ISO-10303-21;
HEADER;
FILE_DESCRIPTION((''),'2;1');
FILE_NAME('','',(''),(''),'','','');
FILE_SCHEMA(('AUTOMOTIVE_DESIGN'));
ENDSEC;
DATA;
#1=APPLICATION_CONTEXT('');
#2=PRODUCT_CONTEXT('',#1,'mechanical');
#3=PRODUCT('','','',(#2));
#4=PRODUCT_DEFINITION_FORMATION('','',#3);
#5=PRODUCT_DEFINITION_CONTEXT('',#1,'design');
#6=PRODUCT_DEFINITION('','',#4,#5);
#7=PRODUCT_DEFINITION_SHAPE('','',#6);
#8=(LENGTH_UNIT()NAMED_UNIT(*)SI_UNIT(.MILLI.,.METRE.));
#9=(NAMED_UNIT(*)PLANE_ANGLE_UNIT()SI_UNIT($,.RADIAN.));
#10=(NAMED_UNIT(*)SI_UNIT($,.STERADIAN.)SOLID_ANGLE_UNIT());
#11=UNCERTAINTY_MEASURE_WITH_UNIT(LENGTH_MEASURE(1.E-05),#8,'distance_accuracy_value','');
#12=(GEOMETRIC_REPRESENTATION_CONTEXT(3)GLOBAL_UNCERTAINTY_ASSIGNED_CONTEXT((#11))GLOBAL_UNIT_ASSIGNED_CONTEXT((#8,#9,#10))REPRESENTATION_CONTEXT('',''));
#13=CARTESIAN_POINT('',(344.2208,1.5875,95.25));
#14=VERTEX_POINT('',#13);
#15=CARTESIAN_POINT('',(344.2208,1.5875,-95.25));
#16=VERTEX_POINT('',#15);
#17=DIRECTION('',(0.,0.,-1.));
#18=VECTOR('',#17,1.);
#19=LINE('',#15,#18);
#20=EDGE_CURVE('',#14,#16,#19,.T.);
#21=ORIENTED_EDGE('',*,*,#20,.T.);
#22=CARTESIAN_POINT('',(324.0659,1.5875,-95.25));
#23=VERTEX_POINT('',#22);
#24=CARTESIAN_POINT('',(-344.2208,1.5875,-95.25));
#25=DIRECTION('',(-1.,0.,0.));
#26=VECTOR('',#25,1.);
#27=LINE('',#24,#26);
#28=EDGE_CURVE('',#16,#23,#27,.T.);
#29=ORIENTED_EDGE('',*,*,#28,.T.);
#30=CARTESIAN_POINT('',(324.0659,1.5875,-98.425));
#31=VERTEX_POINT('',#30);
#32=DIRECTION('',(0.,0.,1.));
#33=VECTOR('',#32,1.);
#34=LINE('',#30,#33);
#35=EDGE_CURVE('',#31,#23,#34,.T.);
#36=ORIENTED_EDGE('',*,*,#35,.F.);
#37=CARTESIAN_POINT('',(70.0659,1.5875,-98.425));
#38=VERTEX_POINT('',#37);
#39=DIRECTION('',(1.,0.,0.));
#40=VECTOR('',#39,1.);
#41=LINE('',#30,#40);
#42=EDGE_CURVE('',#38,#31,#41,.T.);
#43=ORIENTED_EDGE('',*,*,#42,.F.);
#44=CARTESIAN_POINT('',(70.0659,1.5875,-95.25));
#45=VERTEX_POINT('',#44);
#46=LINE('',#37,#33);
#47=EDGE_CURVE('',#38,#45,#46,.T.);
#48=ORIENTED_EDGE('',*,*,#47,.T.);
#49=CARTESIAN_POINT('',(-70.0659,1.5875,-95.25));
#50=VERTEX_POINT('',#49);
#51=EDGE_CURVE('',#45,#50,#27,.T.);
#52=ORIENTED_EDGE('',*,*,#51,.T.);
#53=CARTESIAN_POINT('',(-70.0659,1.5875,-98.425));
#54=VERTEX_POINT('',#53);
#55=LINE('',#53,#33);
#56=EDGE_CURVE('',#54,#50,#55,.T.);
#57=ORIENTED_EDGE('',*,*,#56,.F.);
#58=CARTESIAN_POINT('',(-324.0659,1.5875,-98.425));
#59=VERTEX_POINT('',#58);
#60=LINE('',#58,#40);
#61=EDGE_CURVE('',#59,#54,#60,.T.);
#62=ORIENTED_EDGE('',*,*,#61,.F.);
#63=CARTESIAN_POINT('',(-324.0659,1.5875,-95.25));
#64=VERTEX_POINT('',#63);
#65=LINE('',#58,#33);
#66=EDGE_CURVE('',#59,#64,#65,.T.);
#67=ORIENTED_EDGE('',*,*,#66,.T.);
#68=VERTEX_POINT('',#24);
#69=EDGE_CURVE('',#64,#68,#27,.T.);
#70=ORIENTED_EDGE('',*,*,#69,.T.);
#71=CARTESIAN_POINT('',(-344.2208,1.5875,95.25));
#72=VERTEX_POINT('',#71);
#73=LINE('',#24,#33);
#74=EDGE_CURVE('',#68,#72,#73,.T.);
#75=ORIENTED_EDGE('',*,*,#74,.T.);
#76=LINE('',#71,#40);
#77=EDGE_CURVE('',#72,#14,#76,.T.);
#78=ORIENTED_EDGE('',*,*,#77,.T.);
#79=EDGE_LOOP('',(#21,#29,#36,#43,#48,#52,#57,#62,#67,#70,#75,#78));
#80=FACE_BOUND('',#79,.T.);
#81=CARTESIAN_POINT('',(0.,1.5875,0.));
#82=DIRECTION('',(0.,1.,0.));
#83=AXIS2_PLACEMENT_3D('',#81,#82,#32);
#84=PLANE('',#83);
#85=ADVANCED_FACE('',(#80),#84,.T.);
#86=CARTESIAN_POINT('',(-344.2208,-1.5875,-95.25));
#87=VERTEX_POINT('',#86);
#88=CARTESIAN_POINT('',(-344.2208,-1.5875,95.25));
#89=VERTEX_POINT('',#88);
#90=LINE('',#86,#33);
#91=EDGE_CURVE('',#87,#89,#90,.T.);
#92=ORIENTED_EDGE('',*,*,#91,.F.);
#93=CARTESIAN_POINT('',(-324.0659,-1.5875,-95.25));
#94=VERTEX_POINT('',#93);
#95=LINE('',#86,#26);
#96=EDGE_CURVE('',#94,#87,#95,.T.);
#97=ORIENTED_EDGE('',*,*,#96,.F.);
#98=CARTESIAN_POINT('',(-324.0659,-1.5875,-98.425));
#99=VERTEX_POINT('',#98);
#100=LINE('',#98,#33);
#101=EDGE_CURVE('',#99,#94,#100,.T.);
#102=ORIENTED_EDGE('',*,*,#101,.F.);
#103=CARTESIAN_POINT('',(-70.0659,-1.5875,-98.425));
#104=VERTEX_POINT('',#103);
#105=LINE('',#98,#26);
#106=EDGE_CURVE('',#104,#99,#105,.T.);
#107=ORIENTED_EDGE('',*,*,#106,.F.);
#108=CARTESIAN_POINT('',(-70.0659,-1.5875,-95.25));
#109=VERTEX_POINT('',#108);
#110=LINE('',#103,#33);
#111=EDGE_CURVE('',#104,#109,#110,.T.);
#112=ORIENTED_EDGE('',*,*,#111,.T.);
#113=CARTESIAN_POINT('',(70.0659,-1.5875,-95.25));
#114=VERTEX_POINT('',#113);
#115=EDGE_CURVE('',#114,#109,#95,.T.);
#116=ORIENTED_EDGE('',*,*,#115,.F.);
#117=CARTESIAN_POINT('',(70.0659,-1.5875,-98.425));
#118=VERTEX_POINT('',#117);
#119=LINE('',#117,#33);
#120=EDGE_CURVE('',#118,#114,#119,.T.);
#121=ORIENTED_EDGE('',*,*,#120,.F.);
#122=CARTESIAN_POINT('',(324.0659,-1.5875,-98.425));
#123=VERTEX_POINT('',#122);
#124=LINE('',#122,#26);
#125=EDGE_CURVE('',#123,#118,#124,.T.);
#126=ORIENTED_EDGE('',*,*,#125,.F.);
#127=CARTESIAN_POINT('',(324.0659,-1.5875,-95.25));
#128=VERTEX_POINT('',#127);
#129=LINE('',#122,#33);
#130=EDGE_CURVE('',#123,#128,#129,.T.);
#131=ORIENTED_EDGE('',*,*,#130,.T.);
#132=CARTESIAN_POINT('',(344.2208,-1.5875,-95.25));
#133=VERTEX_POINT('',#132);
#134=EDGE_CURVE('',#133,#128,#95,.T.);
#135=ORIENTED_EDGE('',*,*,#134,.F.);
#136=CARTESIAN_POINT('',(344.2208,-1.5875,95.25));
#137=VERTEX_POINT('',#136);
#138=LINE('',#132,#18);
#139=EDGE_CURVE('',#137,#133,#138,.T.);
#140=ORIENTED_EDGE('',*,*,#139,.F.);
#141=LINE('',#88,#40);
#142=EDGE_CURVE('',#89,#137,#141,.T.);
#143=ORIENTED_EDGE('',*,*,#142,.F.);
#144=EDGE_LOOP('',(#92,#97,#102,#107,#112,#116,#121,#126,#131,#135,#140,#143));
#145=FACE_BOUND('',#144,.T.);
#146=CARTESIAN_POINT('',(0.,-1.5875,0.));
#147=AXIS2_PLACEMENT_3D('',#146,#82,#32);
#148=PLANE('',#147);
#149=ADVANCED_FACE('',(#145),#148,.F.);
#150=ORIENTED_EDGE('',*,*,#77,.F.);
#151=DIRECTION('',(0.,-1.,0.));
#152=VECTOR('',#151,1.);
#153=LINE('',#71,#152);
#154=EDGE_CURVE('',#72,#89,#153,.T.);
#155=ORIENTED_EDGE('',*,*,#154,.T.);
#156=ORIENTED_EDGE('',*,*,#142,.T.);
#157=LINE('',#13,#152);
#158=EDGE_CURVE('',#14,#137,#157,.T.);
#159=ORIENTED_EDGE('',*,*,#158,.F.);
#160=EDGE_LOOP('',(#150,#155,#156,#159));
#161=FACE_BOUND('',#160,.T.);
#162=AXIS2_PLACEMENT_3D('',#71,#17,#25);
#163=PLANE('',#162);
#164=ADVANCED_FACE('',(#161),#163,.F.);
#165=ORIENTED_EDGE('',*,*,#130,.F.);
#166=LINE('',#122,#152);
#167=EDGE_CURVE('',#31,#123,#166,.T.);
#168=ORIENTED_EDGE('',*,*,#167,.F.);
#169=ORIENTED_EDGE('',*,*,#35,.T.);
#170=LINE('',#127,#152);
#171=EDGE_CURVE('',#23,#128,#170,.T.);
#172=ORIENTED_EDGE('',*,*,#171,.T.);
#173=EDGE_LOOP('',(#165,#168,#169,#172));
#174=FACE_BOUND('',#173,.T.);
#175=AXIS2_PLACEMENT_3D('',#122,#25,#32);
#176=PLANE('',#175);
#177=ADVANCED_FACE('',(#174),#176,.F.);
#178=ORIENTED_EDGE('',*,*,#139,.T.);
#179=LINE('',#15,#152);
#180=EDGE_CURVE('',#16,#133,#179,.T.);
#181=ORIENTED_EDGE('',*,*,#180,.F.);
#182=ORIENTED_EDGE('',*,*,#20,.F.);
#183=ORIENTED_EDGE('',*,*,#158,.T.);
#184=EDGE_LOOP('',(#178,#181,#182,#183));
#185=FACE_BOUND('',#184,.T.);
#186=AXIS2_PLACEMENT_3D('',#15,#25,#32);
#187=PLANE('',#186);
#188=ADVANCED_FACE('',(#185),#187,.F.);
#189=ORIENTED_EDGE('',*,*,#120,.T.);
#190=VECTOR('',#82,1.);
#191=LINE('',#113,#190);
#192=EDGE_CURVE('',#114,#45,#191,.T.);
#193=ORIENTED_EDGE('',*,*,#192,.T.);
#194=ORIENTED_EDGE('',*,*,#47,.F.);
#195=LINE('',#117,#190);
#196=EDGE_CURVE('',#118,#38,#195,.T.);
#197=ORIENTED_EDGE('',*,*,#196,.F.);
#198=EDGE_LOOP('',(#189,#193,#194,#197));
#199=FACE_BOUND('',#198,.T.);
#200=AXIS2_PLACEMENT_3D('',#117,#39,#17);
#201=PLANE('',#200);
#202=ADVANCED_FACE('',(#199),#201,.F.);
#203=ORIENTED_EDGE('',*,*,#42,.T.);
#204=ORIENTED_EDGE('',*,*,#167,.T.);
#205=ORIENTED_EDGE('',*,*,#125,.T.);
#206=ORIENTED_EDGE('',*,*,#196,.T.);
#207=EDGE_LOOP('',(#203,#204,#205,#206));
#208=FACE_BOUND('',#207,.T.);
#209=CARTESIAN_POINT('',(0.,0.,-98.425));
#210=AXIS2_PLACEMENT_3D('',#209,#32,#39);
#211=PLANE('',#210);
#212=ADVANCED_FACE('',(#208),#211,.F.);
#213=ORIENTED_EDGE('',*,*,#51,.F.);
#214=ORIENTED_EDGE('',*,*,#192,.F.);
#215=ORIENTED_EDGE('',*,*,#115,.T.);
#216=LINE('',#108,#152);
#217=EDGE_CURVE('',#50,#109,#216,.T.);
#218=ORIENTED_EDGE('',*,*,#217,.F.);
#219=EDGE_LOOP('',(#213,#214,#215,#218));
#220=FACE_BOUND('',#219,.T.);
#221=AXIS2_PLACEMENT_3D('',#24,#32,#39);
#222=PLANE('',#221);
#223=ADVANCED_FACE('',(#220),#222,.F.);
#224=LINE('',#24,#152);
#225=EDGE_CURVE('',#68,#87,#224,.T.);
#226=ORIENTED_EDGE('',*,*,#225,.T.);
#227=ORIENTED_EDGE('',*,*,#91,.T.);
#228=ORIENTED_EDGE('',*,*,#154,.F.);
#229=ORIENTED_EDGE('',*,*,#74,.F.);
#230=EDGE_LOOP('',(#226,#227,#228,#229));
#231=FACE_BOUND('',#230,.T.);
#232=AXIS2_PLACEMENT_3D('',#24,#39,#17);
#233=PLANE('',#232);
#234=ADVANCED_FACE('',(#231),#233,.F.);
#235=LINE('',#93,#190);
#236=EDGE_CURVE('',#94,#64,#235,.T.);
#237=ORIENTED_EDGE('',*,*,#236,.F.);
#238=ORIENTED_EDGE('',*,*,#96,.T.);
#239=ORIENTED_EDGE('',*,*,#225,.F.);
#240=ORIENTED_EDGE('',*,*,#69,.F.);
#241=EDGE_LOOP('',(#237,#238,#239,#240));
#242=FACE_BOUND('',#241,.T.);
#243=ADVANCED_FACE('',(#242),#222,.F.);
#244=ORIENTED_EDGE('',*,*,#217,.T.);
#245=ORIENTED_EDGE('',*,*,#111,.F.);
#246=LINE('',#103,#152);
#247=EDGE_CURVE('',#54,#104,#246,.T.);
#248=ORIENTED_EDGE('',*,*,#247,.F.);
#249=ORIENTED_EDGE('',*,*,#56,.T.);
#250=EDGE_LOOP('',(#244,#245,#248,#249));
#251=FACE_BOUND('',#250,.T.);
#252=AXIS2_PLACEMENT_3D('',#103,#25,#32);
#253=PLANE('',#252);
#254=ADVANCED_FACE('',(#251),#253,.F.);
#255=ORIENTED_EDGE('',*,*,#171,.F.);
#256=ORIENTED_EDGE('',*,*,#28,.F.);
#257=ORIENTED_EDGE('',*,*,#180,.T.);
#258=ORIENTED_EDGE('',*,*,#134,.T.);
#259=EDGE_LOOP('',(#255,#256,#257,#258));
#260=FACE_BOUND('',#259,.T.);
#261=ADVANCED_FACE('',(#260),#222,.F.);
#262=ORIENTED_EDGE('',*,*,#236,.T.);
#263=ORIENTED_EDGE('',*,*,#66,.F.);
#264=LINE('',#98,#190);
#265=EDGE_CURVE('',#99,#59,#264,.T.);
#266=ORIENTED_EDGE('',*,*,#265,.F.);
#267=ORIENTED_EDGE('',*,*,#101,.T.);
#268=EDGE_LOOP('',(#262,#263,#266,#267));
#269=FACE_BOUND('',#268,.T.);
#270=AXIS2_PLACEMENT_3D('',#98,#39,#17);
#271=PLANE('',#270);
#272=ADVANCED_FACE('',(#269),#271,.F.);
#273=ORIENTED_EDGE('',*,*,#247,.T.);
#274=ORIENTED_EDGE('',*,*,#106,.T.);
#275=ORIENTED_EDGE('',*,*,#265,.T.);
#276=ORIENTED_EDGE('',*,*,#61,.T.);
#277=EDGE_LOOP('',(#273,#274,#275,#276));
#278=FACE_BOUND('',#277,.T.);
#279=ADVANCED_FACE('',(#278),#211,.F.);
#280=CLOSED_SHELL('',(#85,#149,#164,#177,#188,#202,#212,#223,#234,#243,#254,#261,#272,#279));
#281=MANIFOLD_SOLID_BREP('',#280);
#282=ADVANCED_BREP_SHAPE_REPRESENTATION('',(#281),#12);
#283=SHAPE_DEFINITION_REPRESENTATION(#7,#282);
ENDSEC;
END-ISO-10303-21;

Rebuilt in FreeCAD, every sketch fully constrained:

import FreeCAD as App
import Part
import Sketcher

V = App.Vector
Q = App.Units.Quantity


def add_polygon(sketch, points):
    """Adds a closed chain of lines whose ends are joined by coincident constraints."""
    first, n = sketch.GeometryCount, len(points)
    for a, b in zip(points, points[1:] + points[:1]):
        sketch.addGeometry(Part.LineSegment(App.Vector(*a, 0), App.Vector(*b, 0)), False)
    for i in range(n):
        sketch.addConstraint(Sketcher.Constraint("Coincident", first + i, 2, first + (i + 1) % n, 1))

doc = App.newDocument("Part")
body = doc.addObject("PartDesign::Body", "Body")

# Sketch on XZ plane
sketch1 = body.newObject("Sketcher::SketchObject", "Sketch")
sketch1.AttachmentSupport = (doc.getObject("XZ_Plane"), [""])
sketch1.MapMode = "FlatFace"
add_polygon(sketch1, [(-344, -95), (-344, 95), (344, 95), (344, -95)])  # lines 0-3
sketch1.addConstraint(Sketcher.Constraint("Vertical", 0))
sketch1.addConstraint(Sketcher.Constraint("Horizontal", 1))
sketch1.addConstraint(Sketcher.Constraint("Vertical", 2))
sketch1.addConstraint(Sketcher.Constraint("Horizontal", 3))
sketch1.addConstraint(Sketcher.Constraint("Symmetric", 0, 2, 2, 2, -1, 1))
sketch1.addConstraint(Sketcher.Constraint("DistanceY", 0, 1, 0, 2, Q("7.5 in")))
sketch1.addConstraint(Sketcher.Constraint("DistanceX", 1, 1, 1, 2, Q("27.104 in")))
pad1 = body.newObject("PartDesign::Pad", "Pad")
pad1.Profile = sketch1
pad1.Length = Q("0.125 in")
pad1.Midplane = True

# Sketch on XY plane
sketch2 = body.newObject("Sketcher::SketchObject", "Sketch001")
sketch2.AttachmentSupport = (doc.getObject("XY_Plane"), [""])
sketch2.MapMode = "FlatFace"
sketch2.AttachmentOffset = App.Placement(V(0, 0, -3.75 * 25.4), App.Rotation())
add_polygon(sketch2, [(324.1, 1.6), (324.1, -1.6), (70.1, -1.6), (70.1, 1.6)])  # lines 0-3
add_polygon(sketch2, [(-70.1, 1.6), (-70.1, -1.6), (-324.1, -1.6), (-324.1, 1.6)])  # lines 4-7
sketch2.addConstraint(Sketcher.Constraint("Vertical", 0))
sketch2.addConstraint(Sketcher.Constraint("Horizontal", 1))
sketch2.addConstraint(Sketcher.Constraint("Vertical", 2))
sketch2.addConstraint(Sketcher.Constraint("Horizontal", 3))
sketch2.addConstraint(Sketcher.Constraint("Vertical", 4))
sketch2.addConstraint(Sketcher.Constraint("Horizontal", 5))
sketch2.addConstraint(Sketcher.Constraint("Vertical", 6))
sketch2.addConstraint(Sketcher.Constraint("Horizontal", 7))
sketch2.addConstraint(Sketcher.Constraint("Symmetric", 2, 2, 4, 2, -1, 1))
sketch2.addConstraint(Sketcher.Constraint("Symmetric", 0, 2, 6, 2, -1, 1))
sketch2.addConstraint(Sketcher.Constraint("Horizontal", 1, 2, 4, 2))
sketch2.addConstraint(Sketcher.Constraint("DistanceX", 1, 2, 1, 1, Q("10 in")))
sketch2.addConstraint(Sketcher.Constraint("DistanceY", 0, 2, 0, 1, Q("0.125 in")))
sketch2.addConstraint(Sketcher.Constraint("DistanceX", 4, 2, 1, 2, Q("5.517 in")))
pad2 = body.newObject("PartDesign::Pad", "Pad001")
pad2.Profile = sketch2
pad2.Length = Q("0.125 in")
pad2.Reversed = True

doc.recompute()
